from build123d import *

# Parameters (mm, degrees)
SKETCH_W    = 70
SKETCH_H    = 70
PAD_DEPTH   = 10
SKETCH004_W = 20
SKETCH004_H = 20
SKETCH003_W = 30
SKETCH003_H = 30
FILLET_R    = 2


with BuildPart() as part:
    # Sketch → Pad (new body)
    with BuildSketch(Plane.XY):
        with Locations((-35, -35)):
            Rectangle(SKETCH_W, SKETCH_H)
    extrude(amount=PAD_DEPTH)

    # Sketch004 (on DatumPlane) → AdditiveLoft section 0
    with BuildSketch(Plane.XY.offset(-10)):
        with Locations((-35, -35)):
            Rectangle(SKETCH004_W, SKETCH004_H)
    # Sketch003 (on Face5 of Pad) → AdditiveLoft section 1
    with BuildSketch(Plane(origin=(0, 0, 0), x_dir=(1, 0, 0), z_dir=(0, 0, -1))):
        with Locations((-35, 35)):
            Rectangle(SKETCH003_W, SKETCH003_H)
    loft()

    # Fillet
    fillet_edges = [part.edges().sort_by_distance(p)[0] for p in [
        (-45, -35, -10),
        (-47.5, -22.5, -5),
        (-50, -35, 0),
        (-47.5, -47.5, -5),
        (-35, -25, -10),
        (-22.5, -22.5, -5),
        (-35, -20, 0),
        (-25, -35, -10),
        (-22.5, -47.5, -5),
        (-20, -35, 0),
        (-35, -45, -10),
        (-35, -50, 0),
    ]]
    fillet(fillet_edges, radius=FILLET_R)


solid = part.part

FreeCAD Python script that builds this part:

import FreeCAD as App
import Part
import Sketcher
from FreeCAD import Vector


def edges_at(feature, points):
    """Names of the edges that pass closest to the given points."""
    edges = feature.Shape.Edges
    near = lambda p: min(range(len(edges)), key=lambda i: edges[i].distToShape(Part.Vertex(*p))[0])
    return sorted({f"Edge{near(p) + 1}" for p in points})

doc = App.newDocument("Part")
body = doc.addObject("PartDesign::Body", "Body")

# Sketch on XY plane
sketch1 = body.newObject("Sketcher::SketchObject", "Sketch")
sketch1.AttachmentSupport = (doc.getObject("XY_Plane"), [""])
sketch1.MapMode = "FlatFace"
sketch1.addGeometry([
    Part.LineSegment(Vector(-70, 0, 0), Vector(-70, -70, 0)),
    Part.LineSegment(Vector(-70, -70, 0), Vector(0, -70, 0)),
    Part.LineSegment(Vector(0, -70, 0), Vector(0, 0, 0)),
    Part.LineSegment(Vector(0, 0, 0), Vector(-70, 0, 0)),
], False)
sketch1.addConstraint([
    Sketcher.Constraint("Coincident", 0, 2, 1, 1),
    Sketcher.Constraint("Coincident", 1, 2, 2, 1),
    Sketcher.Constraint("Coincident", 2, 2, 3, 1),
    Sketcher.Constraint("Coincident", 3, 2, 0, 1),
    Sketcher.Constraint("Vertical", 0),
    Sketcher.Constraint("Horizontal", 1),
    Sketcher.Constraint("Vertical", 2),
    Sketcher.Constraint("Horizontal", 3),
    Sketcher.Constraint("Coincident", 2, 2, -1, 1),
    Sketcher.Constraint("Equal", 3, 0),
    Sketcher.Constraint("DistanceX", 1, 1, 1, 2, 70.0),
])
pad1 = body.newObject("PartDesign::Pad", "Pad")
pad1.Profile = sketch1
pad1.Length = 10

# Sketch on XY plane
sketch2 = body.newObject("Sketcher::SketchObject", "Sketch001")
sketch2.AttachmentSupport = (doc.getObject("XY_Plane"), [""])
sketch2.MapMode = "FlatFace"
sketch2.AttachmentOffset = App.Placement(Vector(0, 0, -10), App.Rotation())
sketch2.addGeometry([
    Part.LineSegment(Vector(-45, -25, 0), Vector(-45, -45, 0)),
    Part.LineSegment(Vector(-45, -45, 0), Vector(-25, -45, 0)),
    Part.LineSegment(Vector(-25, -45, 0), Vector(-25, -25, 0)),
    Part.LineSegment(Vector(-25, -25, 0), Vector(-45, -25, 0)),
], False)
sketch2.addConstraint([
    Sketcher.Constraint("Coincident", 0, 2, 1, 1),
    Sketcher.Constraint("Coincident", 1, 2, 2, 1),
    Sketcher.Constraint("Coincident", 2, 2, 3, 1),
    Sketcher.Constraint("Coincident", 3, 2, 0, 1),
    Sketcher.Constraint("Vertical", 0),
    Sketcher.Constraint("Horizontal", 1),
    Sketcher.Constraint("Vertical", 2),
    Sketcher.Constraint("Horizontal", 3),
    Sketcher.Constraint("Equal", 3, 0),
    Sketcher.Constraint("DistanceX", 1, 1, 1, 2, 20.0),
    Sketcher.Constraint("DistanceX", 0, 2, -1, 1, 45.0),
    Sketcher.Constraint("DistanceY", 0, 2, -1, 1, 45.0),
])

# Sketch on XY plane
sketch3 = body.newObject("Sketcher::SketchObject", "Sketch002")
sketch3.AttachmentSupport = (doc.getObject("XY_Plane"), [""])
sketch3.MapMode = "FlatFace"
sketch3.addGeometry([
    Part.LineSegment(Vector(-50, -50, 0), Vector(-50, -20, 0)),
    Part.LineSegment(Vector(-50, -20, 0), Vector(-20, -20, 0)),
    Part.LineSegment(Vector(-20, -20, 0), Vector(-20, -50, 0)),
    Part.LineSegment(Vector(-20, -50, 0), Vector(-50, -50, 0)),
], False)
sketch3.addConstraint([
    Sketcher.Constraint("Coincident", 0, 2, 1, 1),
    Sketcher.Constraint("Coincident", 1, 2, 2, 1),
    Sketcher.Constraint("Coincident", 2, 2, 3, 1),
    Sketcher.Constraint("Coincident", 3, 2, 0, 1),
    Sketcher.Constraint("Vertical", 0),
    Sketcher.Constraint("Horizontal", 1),
    Sketcher.Constraint("Vertical", 2),
    Sketcher.Constraint("Horizontal", 3),
    Sketcher.Constraint("Equal", 3, 0),
    Sketcher.Constraint("DistanceX", 1, 1, 1, 2, 30.0),
    Sketcher.Constraint("DistanceX", 0, 2, -1, 1, 50.0),
    Sketcher.Constraint("DistanceY", 0, 2, -1, 1, 20.0),
])

additiveloft = body.newObject("PartDesign::AdditiveLoft", "AdditiveLoft")
additiveloft.Profile = sketch2
additiveloft.Sections = [sketch3]
doc.recompute()

fillet = body.newObject("PartDesign::Fillet", "Fillet")
fillet.Base = (additiveloft, edges_at(additiveloft, [
    (-45, -35, -10),
    (-47.5, -22.5, -5),
    (-50, -35, 0),
    (-47.5, -47.5, -5),
    (-35, -25, -10),
    (-22.5, -22.5, -5),
    (-35, -20, 0),
    (-25, -35, -10),
    (-22.5, -47.5, -5),
    (-20, -35, 0),
    (-35, -45, -10),
    (-35, -50, 0),
]))
fillet.Radius = 2

doc.recompute()
